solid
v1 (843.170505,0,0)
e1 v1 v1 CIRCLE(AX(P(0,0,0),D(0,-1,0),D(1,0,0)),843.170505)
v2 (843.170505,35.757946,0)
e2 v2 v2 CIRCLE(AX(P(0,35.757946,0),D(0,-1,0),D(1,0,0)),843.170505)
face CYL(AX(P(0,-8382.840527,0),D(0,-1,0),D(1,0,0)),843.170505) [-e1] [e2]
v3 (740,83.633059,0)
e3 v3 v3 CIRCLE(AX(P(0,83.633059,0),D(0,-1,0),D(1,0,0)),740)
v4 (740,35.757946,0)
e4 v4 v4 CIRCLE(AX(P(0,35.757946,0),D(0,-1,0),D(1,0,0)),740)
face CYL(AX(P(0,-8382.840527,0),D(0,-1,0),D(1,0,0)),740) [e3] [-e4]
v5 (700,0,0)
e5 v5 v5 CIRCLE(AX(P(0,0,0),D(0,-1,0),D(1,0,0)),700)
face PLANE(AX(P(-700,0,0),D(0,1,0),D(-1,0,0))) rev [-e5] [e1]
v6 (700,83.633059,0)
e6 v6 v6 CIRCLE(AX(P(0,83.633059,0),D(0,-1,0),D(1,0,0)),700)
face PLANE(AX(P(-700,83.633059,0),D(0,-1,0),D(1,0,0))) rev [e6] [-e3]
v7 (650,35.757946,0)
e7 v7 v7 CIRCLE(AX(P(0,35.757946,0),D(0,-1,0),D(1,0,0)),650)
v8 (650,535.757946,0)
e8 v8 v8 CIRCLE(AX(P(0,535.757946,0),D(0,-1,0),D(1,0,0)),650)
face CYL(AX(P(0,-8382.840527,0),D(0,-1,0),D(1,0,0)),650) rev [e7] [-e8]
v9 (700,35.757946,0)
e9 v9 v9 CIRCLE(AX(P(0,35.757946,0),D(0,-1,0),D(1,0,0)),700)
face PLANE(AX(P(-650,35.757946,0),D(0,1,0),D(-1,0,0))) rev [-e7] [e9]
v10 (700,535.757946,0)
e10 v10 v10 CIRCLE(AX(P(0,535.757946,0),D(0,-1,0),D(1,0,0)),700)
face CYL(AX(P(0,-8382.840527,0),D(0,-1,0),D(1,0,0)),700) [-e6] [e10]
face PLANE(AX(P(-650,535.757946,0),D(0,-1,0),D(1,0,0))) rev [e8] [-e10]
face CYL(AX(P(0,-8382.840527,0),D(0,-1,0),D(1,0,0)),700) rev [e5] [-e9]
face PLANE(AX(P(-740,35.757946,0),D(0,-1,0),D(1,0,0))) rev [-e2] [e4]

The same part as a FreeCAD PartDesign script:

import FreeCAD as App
import Part
import Sketcher

doc = App.newDocument("Part")
body = doc.addObject("PartDesign::Body", "Body")

# Sketch on XY plane
sketch1 = doc.addObject("Sketcher::SketchObject", "Sketch")
body.addObject(sketch1)
sketch1.AttachmentSupport = (doc.XY_Plane, [""])
sketch1.MapMode = "FlatFace"
sketch1.addGeometry([
    Part.LineSegment(App.Vector(-650, 35.757946, 0), App.Vector(-650, 535.757946, 0)),  # 0
    Part.LineSegment(App.Vector(-650, 535.757946, 0), App.Vector(-700, 535.757946, 0)),  # 1
    Part.LineSegment(App.Vector(-700, 535.757946, 0), App.Vector(-700, 83.633059, 0)),  # 2
    Part.LineSegment(App.Vector(-700, 83.633059, 0), App.Vector(-740, 83.633059, 0)),  # 3
    Part.LineSegment(App.Vector(-740, 83.633059, 0), App.Vector(-740, 35.757946, 0)),  # 4
    Part.LineSegment(App.Vector(-740, 35.757946, 0), App.Vector(-843.170505, 35.757946, 0)),  # 5
    Part.LineSegment(App.Vector(-843.170505, 35.757946, 0), App.Vector(-843.170505, 0, 0)),  # 6
    Part.LineSegment(App.Vector(-843.170505, 0, 0), App.Vector(-700, 0, 0)),  # 7
    Part.LineSegment(App.Vector(-700, 0, 0), App.Vector(-700, 35.757946, 0)),  # 8
    Part.LineSegment(App.Vector(-700, 35.757946, 0), App.Vector(-650, 35.757946, 0)),  # 9
], False)
sketch1.addConstraint([
    Sketcher.Constraint("Coincident", 0, 2, 1, 1),
    Sketcher.Constraint("Coincident", 1, 2, 2, 1),
    Sketcher.Constraint("Coincident", 2, 2, 3, 1),
    Sketcher.Constraint("Coincident", 3, 2, 4, 1),
    Sketcher.Constraint("Coincident", 4, 2, 5, 1),
    Sketcher.Constraint("Coincident", 5, 2, 6, 1),
    Sketcher.Constraint("Coincident", 6, 2, 7, 1),
    Sketcher.Constraint("Coincident", 7, 2, 8, 1),
    Sketcher.Constraint("Coincident", 8, 2, 9, 1),
    Sketcher.Constraint("Coincident", 9, 2, 0, 1),
    Sketcher.Constraint("Vertical", 0),
    Sketcher.Constraint("Horizontal", 1),
    Sketcher.Constraint("Vertical", 2),
    Sketcher.Constraint("Horizontal", 3),
    Sketcher.Constraint("Vertical", 4),
    Sketcher.Constraint("Horizontal", 5),
    Sketcher.Constraint("Vertical", 6),
    Sketcher.Constraint("Horizontal", 7),
    Sketcher.Constraint("Vertical", 8),
    Sketcher.Constraint("Horizontal", 9),
    Sketcher.Constraint("PointOnObject", 6, 2, -1),
    Sketcher.Constraint("Horizontal", 5, 2, 8, 2),
    Sketcher.Constraint("Vertical", 2, 2, 7, 2),
    Sketcher.Constraint("DistanceX", 1, 2, 1, 1, 50.0),
    Sketcher.Constraint("DistanceX", 3, 2, 3, 1, 40.0),
    Sketcher.Constraint("DistanceY", 0, 1, 0, 2, 500.0),
    Sketcher.Constraint("DistanceX", 0, 2, -1, 1, 650.0),
    Sketcher.Constraint("DistanceX", 5, 2, 5, 1, 103.170505),
    Sketcher.Constraint("DistanceY", 2, 2, 2, 1, 452.124887),
    Sketcher.Constraint("DistanceY", 6, 2, 6, 1, 35.757946),
])
revolution = doc.addObject("PartDesign::Revolution", "Revolution")
body.addObject(revolution)
revolution.Profile = sketch1
revolution.ReferenceAxis = (sketch1, ["V_Axis"])
revolution.Angle = 360

doc.recompute()
